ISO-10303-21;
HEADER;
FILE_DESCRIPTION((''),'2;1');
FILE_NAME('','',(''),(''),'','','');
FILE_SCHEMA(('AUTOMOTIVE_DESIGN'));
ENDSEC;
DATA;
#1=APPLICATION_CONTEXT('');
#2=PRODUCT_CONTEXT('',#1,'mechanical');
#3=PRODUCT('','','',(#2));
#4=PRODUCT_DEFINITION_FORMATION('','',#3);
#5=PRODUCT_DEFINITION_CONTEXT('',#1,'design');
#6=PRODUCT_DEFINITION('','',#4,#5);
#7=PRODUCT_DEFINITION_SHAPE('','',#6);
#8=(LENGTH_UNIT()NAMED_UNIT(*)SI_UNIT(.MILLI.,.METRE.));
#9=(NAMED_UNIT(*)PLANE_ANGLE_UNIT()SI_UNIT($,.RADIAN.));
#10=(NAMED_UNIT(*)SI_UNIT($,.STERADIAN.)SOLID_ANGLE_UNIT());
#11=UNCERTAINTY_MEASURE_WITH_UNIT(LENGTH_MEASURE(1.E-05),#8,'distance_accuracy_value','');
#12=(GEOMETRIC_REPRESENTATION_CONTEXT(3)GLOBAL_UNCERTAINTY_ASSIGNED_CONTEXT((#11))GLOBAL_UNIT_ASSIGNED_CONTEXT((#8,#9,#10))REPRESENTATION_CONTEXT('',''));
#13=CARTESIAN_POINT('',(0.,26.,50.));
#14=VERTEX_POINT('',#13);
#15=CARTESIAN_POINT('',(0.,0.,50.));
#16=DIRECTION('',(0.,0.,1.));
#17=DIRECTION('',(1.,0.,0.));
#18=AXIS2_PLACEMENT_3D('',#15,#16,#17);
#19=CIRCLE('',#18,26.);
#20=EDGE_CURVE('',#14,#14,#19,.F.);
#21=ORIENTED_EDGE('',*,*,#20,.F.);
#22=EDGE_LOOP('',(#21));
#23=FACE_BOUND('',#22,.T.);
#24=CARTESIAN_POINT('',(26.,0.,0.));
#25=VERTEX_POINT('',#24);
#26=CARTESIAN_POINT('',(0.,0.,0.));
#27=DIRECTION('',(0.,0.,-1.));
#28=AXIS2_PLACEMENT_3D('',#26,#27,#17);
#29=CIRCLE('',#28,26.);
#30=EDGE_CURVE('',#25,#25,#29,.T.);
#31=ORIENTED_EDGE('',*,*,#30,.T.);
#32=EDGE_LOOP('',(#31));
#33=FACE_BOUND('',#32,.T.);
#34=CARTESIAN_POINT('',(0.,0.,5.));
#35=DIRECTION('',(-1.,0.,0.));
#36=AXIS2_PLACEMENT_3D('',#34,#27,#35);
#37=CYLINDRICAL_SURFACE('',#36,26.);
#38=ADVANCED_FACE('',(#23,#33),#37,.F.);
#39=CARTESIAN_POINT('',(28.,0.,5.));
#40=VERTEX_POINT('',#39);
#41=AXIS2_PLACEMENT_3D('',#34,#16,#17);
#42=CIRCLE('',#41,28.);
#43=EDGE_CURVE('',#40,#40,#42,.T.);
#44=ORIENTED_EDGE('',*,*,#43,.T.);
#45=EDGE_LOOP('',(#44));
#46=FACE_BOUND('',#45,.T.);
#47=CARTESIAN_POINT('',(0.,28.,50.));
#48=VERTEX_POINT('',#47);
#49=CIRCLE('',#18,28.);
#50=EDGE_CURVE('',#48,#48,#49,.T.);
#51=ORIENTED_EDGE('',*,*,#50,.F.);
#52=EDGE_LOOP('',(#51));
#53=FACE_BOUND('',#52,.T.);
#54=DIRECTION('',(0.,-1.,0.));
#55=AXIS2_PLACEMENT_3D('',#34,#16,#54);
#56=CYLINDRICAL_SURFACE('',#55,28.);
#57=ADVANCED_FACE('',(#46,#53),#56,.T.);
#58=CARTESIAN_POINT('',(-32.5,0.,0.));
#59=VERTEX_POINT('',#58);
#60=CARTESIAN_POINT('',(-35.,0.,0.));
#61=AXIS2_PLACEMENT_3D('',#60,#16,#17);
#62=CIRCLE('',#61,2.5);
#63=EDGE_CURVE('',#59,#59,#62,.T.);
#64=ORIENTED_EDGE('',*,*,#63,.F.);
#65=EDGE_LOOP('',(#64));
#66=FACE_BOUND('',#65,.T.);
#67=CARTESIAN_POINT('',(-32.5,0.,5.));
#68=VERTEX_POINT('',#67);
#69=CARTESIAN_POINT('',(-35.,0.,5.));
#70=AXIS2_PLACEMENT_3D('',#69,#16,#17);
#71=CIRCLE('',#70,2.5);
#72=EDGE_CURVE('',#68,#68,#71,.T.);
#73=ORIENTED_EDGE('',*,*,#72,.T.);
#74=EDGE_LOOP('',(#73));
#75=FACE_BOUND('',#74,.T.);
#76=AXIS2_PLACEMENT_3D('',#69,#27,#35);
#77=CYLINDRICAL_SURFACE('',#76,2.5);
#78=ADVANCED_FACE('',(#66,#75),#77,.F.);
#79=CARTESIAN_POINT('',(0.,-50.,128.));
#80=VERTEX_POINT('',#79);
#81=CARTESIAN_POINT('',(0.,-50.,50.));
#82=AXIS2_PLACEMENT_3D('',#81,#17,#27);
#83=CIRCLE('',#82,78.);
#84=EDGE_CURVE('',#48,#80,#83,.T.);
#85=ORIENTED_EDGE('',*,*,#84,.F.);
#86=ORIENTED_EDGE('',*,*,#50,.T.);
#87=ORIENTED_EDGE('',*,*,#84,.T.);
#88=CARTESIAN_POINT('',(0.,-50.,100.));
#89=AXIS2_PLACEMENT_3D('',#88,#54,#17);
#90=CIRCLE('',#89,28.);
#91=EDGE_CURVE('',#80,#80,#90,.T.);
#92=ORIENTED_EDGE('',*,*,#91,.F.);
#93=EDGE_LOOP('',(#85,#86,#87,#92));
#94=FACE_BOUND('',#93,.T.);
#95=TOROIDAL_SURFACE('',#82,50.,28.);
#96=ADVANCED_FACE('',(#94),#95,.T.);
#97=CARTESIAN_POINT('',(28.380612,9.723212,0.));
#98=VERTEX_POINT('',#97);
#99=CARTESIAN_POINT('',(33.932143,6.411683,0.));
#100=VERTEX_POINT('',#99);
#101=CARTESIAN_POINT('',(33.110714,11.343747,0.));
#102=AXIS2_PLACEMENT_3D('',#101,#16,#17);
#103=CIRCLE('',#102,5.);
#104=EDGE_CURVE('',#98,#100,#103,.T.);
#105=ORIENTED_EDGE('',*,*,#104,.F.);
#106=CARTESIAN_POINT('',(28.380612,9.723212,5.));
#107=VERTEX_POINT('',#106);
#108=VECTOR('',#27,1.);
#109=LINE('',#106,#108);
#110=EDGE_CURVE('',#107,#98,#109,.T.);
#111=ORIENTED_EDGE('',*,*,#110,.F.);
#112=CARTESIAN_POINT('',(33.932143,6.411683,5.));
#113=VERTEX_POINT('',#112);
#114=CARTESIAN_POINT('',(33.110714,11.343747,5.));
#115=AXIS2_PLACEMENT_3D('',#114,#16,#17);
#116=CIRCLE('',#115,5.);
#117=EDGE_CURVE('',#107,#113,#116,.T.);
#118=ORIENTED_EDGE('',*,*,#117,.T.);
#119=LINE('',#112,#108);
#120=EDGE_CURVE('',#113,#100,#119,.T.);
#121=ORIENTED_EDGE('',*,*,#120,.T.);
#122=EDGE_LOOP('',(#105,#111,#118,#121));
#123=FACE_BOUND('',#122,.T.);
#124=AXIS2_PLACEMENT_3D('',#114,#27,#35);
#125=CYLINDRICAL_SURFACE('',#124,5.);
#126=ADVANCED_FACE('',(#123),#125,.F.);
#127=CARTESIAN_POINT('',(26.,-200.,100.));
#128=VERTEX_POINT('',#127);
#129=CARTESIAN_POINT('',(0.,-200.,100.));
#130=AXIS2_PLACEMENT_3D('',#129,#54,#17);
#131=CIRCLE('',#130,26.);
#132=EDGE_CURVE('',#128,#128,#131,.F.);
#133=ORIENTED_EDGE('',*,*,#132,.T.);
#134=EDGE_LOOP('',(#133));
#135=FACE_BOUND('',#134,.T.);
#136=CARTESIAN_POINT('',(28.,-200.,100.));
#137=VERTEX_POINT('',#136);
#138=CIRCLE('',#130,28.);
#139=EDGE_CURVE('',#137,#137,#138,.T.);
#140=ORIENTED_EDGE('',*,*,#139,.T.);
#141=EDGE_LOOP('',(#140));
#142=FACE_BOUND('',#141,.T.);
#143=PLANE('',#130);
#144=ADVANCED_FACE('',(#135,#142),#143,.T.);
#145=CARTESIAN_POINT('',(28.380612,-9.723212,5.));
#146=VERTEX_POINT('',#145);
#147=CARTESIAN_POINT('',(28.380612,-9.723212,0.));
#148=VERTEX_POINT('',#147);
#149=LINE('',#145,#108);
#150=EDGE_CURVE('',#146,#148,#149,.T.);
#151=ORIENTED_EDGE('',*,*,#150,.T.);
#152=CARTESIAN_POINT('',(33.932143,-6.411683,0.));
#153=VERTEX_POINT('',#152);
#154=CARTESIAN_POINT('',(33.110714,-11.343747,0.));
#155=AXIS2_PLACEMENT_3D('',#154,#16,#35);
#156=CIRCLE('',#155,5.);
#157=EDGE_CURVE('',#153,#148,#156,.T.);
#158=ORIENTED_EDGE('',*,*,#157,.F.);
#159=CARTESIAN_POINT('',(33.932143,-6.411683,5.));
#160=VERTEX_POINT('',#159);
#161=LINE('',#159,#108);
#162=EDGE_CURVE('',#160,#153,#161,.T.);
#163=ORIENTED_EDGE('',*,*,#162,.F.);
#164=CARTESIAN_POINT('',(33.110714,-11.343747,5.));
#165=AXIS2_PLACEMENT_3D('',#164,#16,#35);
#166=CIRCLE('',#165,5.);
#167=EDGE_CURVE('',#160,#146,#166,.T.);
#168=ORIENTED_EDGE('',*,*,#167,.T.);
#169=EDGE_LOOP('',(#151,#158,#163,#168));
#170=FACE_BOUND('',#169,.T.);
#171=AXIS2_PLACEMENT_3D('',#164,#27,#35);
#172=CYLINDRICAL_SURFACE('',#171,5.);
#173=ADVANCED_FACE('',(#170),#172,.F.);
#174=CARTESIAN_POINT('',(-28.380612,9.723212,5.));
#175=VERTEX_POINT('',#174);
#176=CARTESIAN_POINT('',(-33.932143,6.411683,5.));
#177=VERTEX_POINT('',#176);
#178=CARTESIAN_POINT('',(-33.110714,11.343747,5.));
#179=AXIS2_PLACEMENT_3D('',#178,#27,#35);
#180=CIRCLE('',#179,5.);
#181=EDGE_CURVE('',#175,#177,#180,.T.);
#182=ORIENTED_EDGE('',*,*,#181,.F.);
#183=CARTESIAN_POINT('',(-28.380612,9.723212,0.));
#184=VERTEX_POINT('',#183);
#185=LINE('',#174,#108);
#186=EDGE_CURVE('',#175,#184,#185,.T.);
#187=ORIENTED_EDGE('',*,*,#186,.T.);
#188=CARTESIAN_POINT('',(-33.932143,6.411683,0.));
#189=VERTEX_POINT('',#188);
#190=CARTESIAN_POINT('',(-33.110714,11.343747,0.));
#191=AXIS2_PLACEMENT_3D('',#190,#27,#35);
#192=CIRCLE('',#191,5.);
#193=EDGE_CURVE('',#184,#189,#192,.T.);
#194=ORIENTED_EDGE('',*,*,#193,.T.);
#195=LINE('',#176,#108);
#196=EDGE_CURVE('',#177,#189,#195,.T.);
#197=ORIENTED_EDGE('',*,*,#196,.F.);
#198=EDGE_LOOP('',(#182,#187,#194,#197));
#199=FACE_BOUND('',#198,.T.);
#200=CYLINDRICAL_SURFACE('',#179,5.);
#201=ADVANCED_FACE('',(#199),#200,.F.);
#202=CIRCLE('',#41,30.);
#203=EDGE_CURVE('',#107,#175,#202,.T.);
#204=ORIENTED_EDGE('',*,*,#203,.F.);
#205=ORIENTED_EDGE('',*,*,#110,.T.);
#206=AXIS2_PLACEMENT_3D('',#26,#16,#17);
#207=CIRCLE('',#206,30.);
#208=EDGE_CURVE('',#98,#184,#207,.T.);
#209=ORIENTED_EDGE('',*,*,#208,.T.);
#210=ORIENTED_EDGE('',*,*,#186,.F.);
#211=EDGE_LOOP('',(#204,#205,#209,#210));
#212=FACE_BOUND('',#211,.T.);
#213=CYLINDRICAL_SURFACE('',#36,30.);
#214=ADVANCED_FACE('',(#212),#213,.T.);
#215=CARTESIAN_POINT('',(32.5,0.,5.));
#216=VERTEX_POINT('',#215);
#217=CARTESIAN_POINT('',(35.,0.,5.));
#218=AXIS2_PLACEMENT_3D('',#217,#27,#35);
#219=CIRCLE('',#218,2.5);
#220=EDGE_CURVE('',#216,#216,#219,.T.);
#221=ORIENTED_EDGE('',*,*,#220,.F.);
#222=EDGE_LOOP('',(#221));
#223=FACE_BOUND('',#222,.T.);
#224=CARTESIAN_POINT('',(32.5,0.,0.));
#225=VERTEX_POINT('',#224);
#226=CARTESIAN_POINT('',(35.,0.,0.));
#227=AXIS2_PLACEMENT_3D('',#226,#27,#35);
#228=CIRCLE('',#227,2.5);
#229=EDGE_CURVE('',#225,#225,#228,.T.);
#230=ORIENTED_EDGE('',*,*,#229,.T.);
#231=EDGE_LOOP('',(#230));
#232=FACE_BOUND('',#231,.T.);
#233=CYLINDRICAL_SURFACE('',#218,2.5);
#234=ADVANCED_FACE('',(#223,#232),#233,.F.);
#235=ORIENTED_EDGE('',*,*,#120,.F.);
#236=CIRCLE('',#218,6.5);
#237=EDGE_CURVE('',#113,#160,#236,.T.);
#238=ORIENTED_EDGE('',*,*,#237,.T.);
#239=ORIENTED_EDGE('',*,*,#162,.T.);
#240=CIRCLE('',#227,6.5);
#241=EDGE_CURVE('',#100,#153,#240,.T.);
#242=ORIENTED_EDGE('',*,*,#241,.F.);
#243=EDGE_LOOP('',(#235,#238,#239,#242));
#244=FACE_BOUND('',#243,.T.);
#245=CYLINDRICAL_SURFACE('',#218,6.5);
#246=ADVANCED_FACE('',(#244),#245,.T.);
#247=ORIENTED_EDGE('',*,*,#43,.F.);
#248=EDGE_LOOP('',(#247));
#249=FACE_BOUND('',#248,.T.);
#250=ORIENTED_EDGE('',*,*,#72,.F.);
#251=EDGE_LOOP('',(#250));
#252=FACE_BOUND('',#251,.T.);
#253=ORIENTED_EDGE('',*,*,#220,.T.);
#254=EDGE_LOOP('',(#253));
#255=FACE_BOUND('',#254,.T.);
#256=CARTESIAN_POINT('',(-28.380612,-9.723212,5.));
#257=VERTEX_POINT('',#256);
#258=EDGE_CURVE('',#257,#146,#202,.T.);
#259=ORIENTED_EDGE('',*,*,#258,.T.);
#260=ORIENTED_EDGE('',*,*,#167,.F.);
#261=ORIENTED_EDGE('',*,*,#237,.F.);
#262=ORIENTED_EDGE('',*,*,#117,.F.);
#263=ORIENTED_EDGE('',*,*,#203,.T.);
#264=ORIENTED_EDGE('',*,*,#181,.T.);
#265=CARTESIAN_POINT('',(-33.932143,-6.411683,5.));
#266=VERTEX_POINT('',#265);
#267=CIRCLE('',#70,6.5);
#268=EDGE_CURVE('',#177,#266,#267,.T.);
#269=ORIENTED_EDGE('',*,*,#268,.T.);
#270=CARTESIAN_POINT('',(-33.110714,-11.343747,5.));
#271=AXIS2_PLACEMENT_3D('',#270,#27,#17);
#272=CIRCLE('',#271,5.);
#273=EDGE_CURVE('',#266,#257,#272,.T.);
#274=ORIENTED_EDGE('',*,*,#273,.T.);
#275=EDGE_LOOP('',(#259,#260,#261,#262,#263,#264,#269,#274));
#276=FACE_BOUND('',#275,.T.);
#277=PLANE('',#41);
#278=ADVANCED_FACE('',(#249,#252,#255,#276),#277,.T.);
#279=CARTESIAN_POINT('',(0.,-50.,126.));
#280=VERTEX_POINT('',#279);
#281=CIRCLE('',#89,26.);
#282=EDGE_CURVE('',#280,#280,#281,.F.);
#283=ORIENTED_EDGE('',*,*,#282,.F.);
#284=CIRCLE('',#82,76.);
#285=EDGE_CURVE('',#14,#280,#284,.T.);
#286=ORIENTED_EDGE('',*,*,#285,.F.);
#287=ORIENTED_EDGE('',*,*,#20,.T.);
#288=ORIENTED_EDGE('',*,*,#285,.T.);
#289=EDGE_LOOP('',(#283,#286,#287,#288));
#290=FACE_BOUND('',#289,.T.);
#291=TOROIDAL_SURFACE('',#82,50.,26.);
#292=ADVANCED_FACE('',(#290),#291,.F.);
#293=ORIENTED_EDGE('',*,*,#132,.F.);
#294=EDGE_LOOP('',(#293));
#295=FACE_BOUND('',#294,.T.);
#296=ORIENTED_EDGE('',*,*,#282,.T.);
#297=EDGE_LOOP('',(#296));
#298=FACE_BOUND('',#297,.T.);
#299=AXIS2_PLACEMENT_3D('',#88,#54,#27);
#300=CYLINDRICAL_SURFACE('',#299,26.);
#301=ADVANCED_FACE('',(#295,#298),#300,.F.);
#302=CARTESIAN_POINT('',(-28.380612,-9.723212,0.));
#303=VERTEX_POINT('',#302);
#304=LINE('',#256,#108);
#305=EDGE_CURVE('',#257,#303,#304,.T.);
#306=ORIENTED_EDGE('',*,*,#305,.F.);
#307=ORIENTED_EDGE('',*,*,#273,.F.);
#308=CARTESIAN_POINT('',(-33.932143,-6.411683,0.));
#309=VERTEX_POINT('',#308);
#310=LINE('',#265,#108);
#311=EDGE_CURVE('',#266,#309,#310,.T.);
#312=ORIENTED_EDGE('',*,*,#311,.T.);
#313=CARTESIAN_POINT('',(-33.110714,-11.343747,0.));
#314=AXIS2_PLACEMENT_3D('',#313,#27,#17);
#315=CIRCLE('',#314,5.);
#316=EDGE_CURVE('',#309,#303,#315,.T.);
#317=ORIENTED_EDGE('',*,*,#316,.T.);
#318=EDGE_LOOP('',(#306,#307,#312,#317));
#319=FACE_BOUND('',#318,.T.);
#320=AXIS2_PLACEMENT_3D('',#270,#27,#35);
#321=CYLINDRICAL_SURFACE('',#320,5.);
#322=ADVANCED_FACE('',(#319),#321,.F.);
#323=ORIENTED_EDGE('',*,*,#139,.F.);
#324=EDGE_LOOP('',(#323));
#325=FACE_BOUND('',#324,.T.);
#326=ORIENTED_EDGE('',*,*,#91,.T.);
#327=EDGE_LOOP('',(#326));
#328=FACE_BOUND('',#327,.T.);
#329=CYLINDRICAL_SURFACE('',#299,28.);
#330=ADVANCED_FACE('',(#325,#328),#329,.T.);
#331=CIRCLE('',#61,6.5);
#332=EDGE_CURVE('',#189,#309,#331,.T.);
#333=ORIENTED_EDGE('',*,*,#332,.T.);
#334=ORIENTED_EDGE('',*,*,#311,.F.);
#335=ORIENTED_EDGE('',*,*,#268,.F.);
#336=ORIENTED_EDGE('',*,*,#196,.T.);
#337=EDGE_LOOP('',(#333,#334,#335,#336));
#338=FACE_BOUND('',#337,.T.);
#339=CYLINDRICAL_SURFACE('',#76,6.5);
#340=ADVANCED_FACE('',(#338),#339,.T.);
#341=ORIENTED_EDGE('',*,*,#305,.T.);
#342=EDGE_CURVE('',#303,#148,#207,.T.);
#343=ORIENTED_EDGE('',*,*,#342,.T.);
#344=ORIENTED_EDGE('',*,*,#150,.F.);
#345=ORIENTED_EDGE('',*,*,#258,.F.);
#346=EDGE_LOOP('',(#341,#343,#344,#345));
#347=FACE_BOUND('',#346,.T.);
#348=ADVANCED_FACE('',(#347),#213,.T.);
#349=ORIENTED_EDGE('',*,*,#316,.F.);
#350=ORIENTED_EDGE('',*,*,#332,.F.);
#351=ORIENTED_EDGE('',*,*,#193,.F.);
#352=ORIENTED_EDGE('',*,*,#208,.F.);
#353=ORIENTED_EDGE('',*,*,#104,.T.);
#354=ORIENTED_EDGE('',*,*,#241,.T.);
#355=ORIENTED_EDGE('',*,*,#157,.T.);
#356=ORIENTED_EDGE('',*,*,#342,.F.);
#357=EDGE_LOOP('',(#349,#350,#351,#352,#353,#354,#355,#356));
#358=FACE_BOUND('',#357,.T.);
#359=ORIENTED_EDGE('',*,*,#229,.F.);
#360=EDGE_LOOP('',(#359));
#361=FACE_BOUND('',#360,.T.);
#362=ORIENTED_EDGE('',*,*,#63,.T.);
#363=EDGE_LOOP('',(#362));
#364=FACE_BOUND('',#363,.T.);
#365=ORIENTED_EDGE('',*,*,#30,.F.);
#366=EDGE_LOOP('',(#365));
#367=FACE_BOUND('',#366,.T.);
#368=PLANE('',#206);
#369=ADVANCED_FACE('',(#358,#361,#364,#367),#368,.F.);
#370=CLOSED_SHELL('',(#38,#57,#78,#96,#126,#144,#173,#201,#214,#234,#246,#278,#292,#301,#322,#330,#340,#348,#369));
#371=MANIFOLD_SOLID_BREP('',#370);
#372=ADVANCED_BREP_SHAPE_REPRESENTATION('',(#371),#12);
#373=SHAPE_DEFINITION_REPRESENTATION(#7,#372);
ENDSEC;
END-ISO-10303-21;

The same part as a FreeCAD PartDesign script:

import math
import FreeCAD as App
import Part
import Sketcher
Q = App.Units.Quantity

doc = App.newDocument("Part")
params = doc.addObject("Spreadsheet::Sheet", "Params")
for row, (alias, value) in enumerate([
    ("sketch1_diameter", "5 mm"),
    ("sketch1_radius", "30 mm"),
    ("sketch1_radius2", "5 mm"),
    ("sketch1_radius3", "26 mm"),
    ("sketch1_radius4", "6.5 mm"),
    ("pad1_length", "5 mm"),
    ("sketch2_diameter", "56 mm"),
    ("sketch2_diameter2", "52 mm"),
    ("sketch3_radius", "50 mm"),
    ("sketch3_width", "150 mm"),
    ("sketch3_height", "45 mm"),
], start=1):
    params.set(f"A{row}", alias)
    params.set(f"B{row}", "=" + value)
    params.setAlias(f"B{row}", alias)

body = doc.addObject("PartDesign::Body", "Body")

# Sketch on XY plane
sketch1 = body.newObject("Sketcher::SketchObject", "Sketch")
sketch1.AttachmentSupport = (doc.getObject("XY_Plane"), [""])
sketch1.MapMode = "FlatFace"
sketch1.addGeometry([
    Part.LineSegment(App.Vector(0, 26, 0), App.Vector(0, 30, 0)),  # 0
    Part.ArcOfCircle(Part.Circle(App.Vector(0, 0, 0), App.Vector(0, 0, 1), 30), math.radians(90), math.radians(161)),  # 1
    Part.ArcOfCircle(Part.Circle(App.Vector(-33.1, 11.3, 0), App.Vector(0, 0, 1), 5), math.radians(-99), math.radians(-19)),  # 2
    Part.ArcOfCircle(Part.Circle(App.Vector(-35, 0, 0), App.Vector(0, 0, 1), 6.5), math.radians(81), math.radians(279)),  # 3
    Part.ArcOfCircle(Part.Circle(App.Vector(-33.1, -11.3, 0), App.Vector(0, 0, 1), 5), math.radians(19), math.radians(99)),  # 4
    Part.ArcOfCircle(Part.Circle(App.Vector(0, 0, 0), App.Vector(0, 0, 1), 30), math.radians(-161), math.radians(-90)),  # 5
    Part.LineSegment(App.Vector(0, -30, 0), App.Vector(0, -26, 0)),  # 6
    Part.ArcOfCircle(Part.Circle(App.Vector(0, 0, 0), App.Vector(0, 0, 1), 26), math.radians(90), math.radians(270)),  # 7
    Part.Circle(App.Vector(-35, 0, 0), App.Vector(0, 0, 1), 2.5),  # 8
], False)
sketch1.addConstraint([
    Sketcher.Constraint("Coincident", 0, 2, 1, 1),
    Sketcher.Constraint("Tangent", 1, 2, 2, 2),
    Sketcher.Constraint("Tangent", 2, 1, 3, 1),
    Sketcher.Constraint("Tangent", 3, 2, 4, 2),
    Sketcher.Constraint("Tangent", 4, 1, 5, 1),
    Sketcher.Constraint("Coincident", 5, 2, 6, 1),
    Sketcher.Constraint("Coincident", 6, 2, 7, 2),
    Sketcher.Constraint("Coincident", 7, 1, 0, 1),
    Sketcher.Constraint("Vertical", 0),
    Sketcher.Constraint("Vertical", 6),
    Sketcher.Constraint("Coincident", 1, 3, -1, 1),
    Sketcher.Constraint("Coincident", 5, 3, -1, 1),
    Sketcher.Constraint("Coincident", 7, 3, -1, 1),
    Sketcher.Constraint("Coincident", 8, 3, 3, 3),
    Sketcher.Constraint("Equal", 2, 4),
    Sketcher.Constraint("Equal", 1, 5),
    Sketcher.Constraint("PointOnObject", 3, 3, -1),
    Sketcher.Constraint("PointOnObject", 0, 2, -2),
    Sketcher.Constraint("PointOnObject", 5, 2, -2),
    Sketcher.Constraint("Diameter", 8, Q("5 mm")),
    Sketcher.Constraint("Radius", 1, Q("30 mm")),
    Sketcher.Constraint("Radius", 2, Q("5 mm")),
    Sketcher.Constraint("Radius", 7, Q("26 mm")),
    Sketcher.Constraint("Radius", 3, Q("6.5 mm")),
    Sketcher.Constraint("DistanceX", 3, 3, -1, 1, Q("35 mm")),
])
sketch1.setExpression("Constraints[19]", "Params.sketch1_diameter")
sketch1.setExpression("Constraints[20]", "Params.sketch1_radius")
sketch1.setExpression("Constraints[21]", "Params.sketch1_radius2")
sketch1.setExpression("Constraints[22]", "Params.sketch1_radius3")
sketch1.setExpression("Constraints[23]", "Params.sketch1_radius4")
pad1 = body.newObject("PartDesign::Pad", "Pad")
pad1.Profile = sketch1
pad1.setExpression("Length", "Params.pad1_length")
doc.recompute()

mirrored = body.newObject("PartDesign::Mirrored", "Mirrored")
mirrored.Originals = [pad1]
mirrored.MirrorPlane = (doc.getObject("YZ_Plane"), [""])
body.Tip = mirrored

# Sketch on XY plane
sketch2 = body.newObject("Sketcher::SketchObject", "Sketch001")
sketch2.AttachmentSupport = (doc.getObject("XY_Plane"), [""])
sketch2.MapMode = "FlatFace"
sketch2.AttachmentOffset = App.Placement(App.Vector(0, 0, 5), App.Rotation())
sketch2.addGeometry([
    Part.Circle(App.Vector(0, 0, 0), App.Vector(0, 0, 1), 28),
    Part.Circle(App.Vector(0, 0, 0), App.Vector(0, 0, 1), 26),
], False)
sketch2.addConstraint([
    Sketcher.Constraint("Coincident", 0, 3, -1, 1),
    Sketcher.Constraint("Coincident", 1, 3, -1, 1),
    Sketcher.Constraint("Diameter", 0, Q("56 mm")),
    Sketcher.Constraint("Diameter", 1, Q("52 mm")),
])
sketch2.setExpression("Constraints[2]", "Params.sketch2_diameter")
sketch2.setExpression("Constraints[3]", "Params.sketch2_diameter2")

# Sketch on YZ plane
sketch3 = body.newObject("Sketcher::SketchObject", "Sketch002")
sketch3.AttachmentSupport = (doc.getObject("YZ_Plane"), [""])
sketch3.MapMode = "FlatFace"
sketch3.addGeometry([
    Part.LineSegment(App.Vector(0, 5, 0), App.Vector(0, 50, 0)),
    Part.ArcOfCircle(Part.Circle(App.Vector(-50, 50, 0), App.Vector(0, 0, 1), 50), math.radians(0), math.radians(90)),
    Part.LineSegment(App.Vector(-50, 100, 0), App.Vector(-200, 100, 0)),
], False)
sketch3.addConstraint([
    Sketcher.Constraint("Tangent", 0, 2, 1, 1),
    Sketcher.Constraint("Tangent", 1, 2, 2, 1),
    Sketcher.Constraint("Vertical", 0),
    Sketcher.Constraint("Horizontal", 2),
    Sketcher.Constraint("PointOnObject", 0, 1, -2),
    Sketcher.Constraint("Radius", 1, Q("50 mm")),
    Sketcher.Constraint("DistanceX", 2, 2, 2, 1, Q("150 mm")),
    Sketcher.Constraint("DistanceY", 0, 1, 0, 2, Q("45 mm")),
    Sketcher.Constraint("DistanceY", -1, 1, 1, 3, Q("50 mm")),
])
sketch3.setExpression("Constraints[5]", "Params.sketch3_radius")
sketch3.setExpression("Constraints[6]", "Params.sketch3_width")
sketch3.setExpression("Constraints[7]", "Params.sketch3_height")
doc.recompute()

additivepipe = body.newObject("PartDesign::AdditivePipe", "AdditivePipe")
additivepipe.Profile = sketch2
additivepipe.Spine = (sketch3, ["Edge1", "Edge2", "Edge3"])

doc.recompute()
